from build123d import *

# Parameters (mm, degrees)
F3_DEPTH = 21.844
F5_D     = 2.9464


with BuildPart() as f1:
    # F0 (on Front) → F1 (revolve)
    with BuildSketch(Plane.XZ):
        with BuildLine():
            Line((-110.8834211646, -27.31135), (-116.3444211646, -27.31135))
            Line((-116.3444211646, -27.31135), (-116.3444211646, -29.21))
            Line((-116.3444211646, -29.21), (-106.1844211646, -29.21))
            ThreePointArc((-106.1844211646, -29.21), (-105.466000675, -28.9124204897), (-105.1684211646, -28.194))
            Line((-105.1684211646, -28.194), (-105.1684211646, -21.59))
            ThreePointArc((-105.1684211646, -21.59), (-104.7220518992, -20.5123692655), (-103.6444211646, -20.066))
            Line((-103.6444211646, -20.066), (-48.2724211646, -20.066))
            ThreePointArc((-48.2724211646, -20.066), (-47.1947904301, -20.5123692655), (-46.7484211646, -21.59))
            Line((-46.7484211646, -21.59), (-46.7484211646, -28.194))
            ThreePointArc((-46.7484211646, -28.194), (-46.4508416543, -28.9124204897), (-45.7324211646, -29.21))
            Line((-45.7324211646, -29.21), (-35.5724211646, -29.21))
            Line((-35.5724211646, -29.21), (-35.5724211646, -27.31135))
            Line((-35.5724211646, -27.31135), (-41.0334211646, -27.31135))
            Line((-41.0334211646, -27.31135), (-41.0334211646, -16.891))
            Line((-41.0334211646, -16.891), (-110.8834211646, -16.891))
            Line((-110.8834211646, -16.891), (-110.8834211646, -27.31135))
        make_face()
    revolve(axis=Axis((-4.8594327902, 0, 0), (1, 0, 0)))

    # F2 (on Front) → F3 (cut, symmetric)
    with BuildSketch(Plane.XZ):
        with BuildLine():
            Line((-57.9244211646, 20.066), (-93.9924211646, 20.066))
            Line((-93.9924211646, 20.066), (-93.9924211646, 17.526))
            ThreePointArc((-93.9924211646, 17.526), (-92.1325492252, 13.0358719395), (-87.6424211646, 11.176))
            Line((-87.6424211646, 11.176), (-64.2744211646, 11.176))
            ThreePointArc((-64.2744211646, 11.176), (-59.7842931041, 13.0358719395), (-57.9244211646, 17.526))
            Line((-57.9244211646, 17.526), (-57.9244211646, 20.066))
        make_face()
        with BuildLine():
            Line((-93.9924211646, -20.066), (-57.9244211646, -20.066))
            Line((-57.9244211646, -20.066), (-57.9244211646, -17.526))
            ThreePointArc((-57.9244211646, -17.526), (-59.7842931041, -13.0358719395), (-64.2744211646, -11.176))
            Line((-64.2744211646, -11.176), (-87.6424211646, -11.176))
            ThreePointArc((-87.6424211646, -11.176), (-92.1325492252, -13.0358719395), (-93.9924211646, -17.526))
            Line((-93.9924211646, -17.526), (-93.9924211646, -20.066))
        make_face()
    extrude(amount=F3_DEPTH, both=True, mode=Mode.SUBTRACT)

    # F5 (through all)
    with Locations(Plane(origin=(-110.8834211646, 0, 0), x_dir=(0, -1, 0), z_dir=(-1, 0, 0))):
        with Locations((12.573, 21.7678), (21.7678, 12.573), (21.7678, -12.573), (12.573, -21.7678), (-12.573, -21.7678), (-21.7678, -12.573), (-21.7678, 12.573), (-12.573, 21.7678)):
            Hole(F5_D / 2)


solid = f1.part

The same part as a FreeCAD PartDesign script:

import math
import FreeCAD as App
import Part
import Sketcher
Q = App.Units.Quantity

doc = App.newDocument("Part")
body = doc.addObject("PartDesign::Body", "Body")

# Sketch on XZ plane
sketch1 = doc.addObject("Sketcher::SketchObject", "Sketch")
body.addObject(sketch1)
sketch1.AttachmentSupport = (doc.XZ_Plane, [""])
sketch1.MapMode = "FlatFace"
sketch1.addGeometry([
    Part.LineSegment(App.Vector(-110.883421, -27.31135, 0), App.Vector(-116.344421, -27.31135, 0)),  # 0
    Part.LineSegment(App.Vector(-116.344421, -27.31135, 0), App.Vector(-116.344421, -29.21, 0)),  # 1
    Part.LineSegment(App.Vector(-116.344421, -29.21, 0), App.Vector(-106.184421, -29.21, 0)),  # 2
    Part.ArcOfCircle(Part.Circle(App.Vector(-106.184421, -28.194, 0), App.Vector(0, 0, 1), 1.016), math.radians(-90), math.radians(0)),  # 3
    Part.LineSegment(App.Vector(-105.168421, -28.194, 0), App.Vector(-105.168421, -21.59, 0)),  # 4
    Part.ArcOfCircle(Part.Circle(App.Vector(-103.644421, -21.59, 0), App.Vector(0, 0, 1), 1.524), math.radians(90), math.radians(180)),  # 5
    Part.LineSegment(App.Vector(-103.644421, -20.066, 0), App.Vector(-48.272421, -20.066, 0)),  # 6
    Part.ArcOfCircle(Part.Circle(App.Vector(-48.272421, -21.59, 0), App.Vector(0, 0, 1), 1.524), math.radians(0), math.radians(90)),  # 7
    Part.LineSegment(App.Vector(-46.748421, -21.59, 0), App.Vector(-46.748421, -28.194, 0)),  # 8
    Part.ArcOfCircle(Part.Circle(App.Vector(-45.732421, -28.194, 0), App.Vector(0, 0, 1), 1.016), math.radians(180), math.radians(270)),  # 9
    Part.LineSegment(App.Vector(-45.732421, -29.21, 0), App.Vector(-35.572421, -29.21, 0)),  # 10
    Part.LineSegment(App.Vector(-35.572421, -29.21, 0), App.Vector(-35.572421, -27.31135, 0)),  # 11
    Part.LineSegment(App.Vector(-35.572421, -27.31135, 0), App.Vector(-41.033421, -27.31135, 0)),  # 12
    Part.LineSegment(App.Vector(-41.033421, -27.31135, 0), App.Vector(-41.033421, -16.891, 0)),  # 13
    Part.LineSegment(App.Vector(-41.033421, -16.891, 0), App.Vector(-110.883421, -16.891, 0)),  # 14
    Part.LineSegment(App.Vector(-110.883421, -16.891, 0), App.Vector(-110.883421, -27.31135, 0)),  # 15
], False)
sketch1.addConstraint([
    Sketcher.Constraint("Coincident", 0, 2, 1, 1),
    Sketcher.Constraint("Coincident", 1, 2, 2, 1),
    Sketcher.Constraint("Tangent", 2, 2, 3, 1),
    Sketcher.Constraint("Tangent", 3, 2, 4, 1),
    Sketcher.Constraint("Tangent", 4, 2, 5, 2),
    Sketcher.Constraint("Tangent", 5, 1, 6, 1),
    Sketcher.Constraint("Tangent", 6, 2, 7, 2),
    Sketcher.Constraint("Tangent", 7, 1, 8, 1),
    Sketcher.Constraint("Tangent", 8, 2, 9, 1),
    Sketcher.Constraint("Tangent", 9, 2, 10, 1),
    Sketcher.Constraint("Coincident", 10, 2, 11, 1),
    Sketcher.Constraint("Coincident", 11, 2, 12, 1),
    Sketcher.Constraint("Coincident", 12, 2, 13, 1),
    Sketcher.Constraint("Coincident", 13, 2, 14, 1),
    Sketcher.Constraint("Coincident", 14, 2, 15, 1),
    Sketcher.Constraint("Coincident", 15, 2, 0, 1),
    Sketcher.Constraint("Horizontal", 0),
    Sketcher.Constraint("Vertical", 1),
    Sketcher.Constraint("Horizontal", 2),
    Sketcher.Constraint("Vertical", 4),
    Sketcher.Constraint("Horizontal", 6),
    Sketcher.Constraint("Vertical", 8),
    Sketcher.Constraint("Horizontal", 10),
    Sketcher.Constraint("Vertical", 11),
    Sketcher.Constraint("Horizontal", 12),
    Sketcher.Constraint("Vertical", 13),
    Sketcher.Constraint("Horizontal", 14),
    Sketcher.Constraint("Vertical", 15),
    Sketcher.Constraint("Equal", 5, 7),
    Sketcher.Constraint("Equal", 3, 9),
    Sketcher.Constraint("Horizontal", 3, 3, 9, 3),
    Sketcher.Constraint("Horizontal", 0, 2, 11, 2),
    Sketcher.Constraint("Equal", 2, 10),
    Sketcher.Constraint("Equal", 0, 12),
    Sketcher.Constraint("Radius", 3, Q("0.04 in")),
    Sketcher.Constraint("Radius", 5, Q("0.06 in")),
    Sketcher.Constraint("DistanceX", 2, 1, 2, 2, Q("0.4 in")),
    Sketcher.Constraint("DistanceX", 6, 1, 6, 2, Q("2.18 in")),
    Sketcher.Constraint("DistanceX", 14, 2, 14, 1, Q("2.75 in")),
    Sketcher.Constraint("DistanceY", 4, 1, 4, 2, Q("0.26 in")),
    Sketcher.Constraint("DistanceY", 3, 3, -1, 1, Q("1.11 in")),
    Sketcher.Constraint("DistanceY", 13, 2, -1, 1, Q("0.665 in")),
    Sketcher.Constraint("DistanceY", 1, 2, 1, 1, 1.89865),
    Sketcher.Constraint("DistanceX", 3, 3, -1, 1, 106.184421),
])
revolution = doc.addObject("PartDesign::Revolution", "Revolution")
body.addObject(revolution)
revolution.Profile = sketch1
revolution.ReferenceAxis = (sketch1, ["H_Axis"])
revolution.Angle = 360

# Sketch on XZ plane
sketch2 = doc.addObject("Sketcher::SketchObject", "Sketch001")
body.addObject(sketch2)
sketch2.AttachmentSupport = (doc.XZ_Plane, [""])
sketch2.MapMode = "FlatFace"
sketch2.addGeometry([
    Part.LineSegment(App.Vector(-57.924421, 20.066, 0), App.Vector(-93.992421, 20.066, 0)),  # 0
    Part.LineSegment(App.Vector(-93.992421, 20.066, 0), App.Vector(-93.992421, 17.526, 0)),  # 1
    Part.ArcOfCircle(Part.Circle(App.Vector(-87.642421, 17.526, 0), App.Vector(0, 0, 1), 6.35), math.radians(180), math.radians(270)),  # 2
    Part.LineSegment(App.Vector(-87.642421, 11.176, 0), App.Vector(-64.274421, 11.176, 0)),  # 3
    Part.ArcOfCircle(Part.Circle(App.Vector(-64.274421, 17.526, 0), App.Vector(0, 0, 1), 6.35), math.radians(-90), math.radians(0)),  # 4
    Part.LineSegment(App.Vector(-57.924421, 17.526, 0), App.Vector(-57.924421, 20.066, 0)),  # 5
    Part.LineSegment(App.Vector(-93.992421, -20.066, 0), App.Vector(-57.924421, -20.066, 0)),  # 6
    Part.LineSegment(App.Vector(-57.924421, -20.066, 0), App.Vector(-57.924421, -17.526, 0)),  # 7
    Part.ArcOfCircle(Part.Circle(App.Vector(-64.274421, -17.526, 0), App.Vector(0, 0, 1), 6.35), math.radians(0), math.radians(90)),  # 8
    Part.LineSegment(App.Vector(-64.274421, -11.176, 0), App.Vector(-87.642421, -11.176, 0)),  # 9
    Part.ArcOfCircle(Part.Circle(App.Vector(-87.642421, -17.526, 0), App.Vector(0, 0, 1), 6.35), math.radians(90), math.radians(180)),  # 10
    Part.LineSegment(App.Vector(-93.992421, -17.526, 0), App.Vector(-93.992421, -20.066, 0)),  # 11
], False)
sketch2.addConstraint([
    Sketcher.Constraint("Coincident", 0, 2, 1, 1),
    Sketcher.Constraint("Tangent", 1, 2, 2, 1),
    Sketcher.Constraint("Tangent", 2, 2, 3, 1),
    Sketcher.Constraint("Tangent", 3, 2, 4, 1),
    Sketcher.Constraint("Tangent", 4, 2, 5, 1),
    Sketcher.Constraint("Coincident", 5, 2, 0, 1),
    Sketcher.Constraint("Coincident", 6, 2, 7, 1),
    Sketcher.Constraint("Tangent", 7, 2, 8, 1),
    Sketcher.Constraint("Tangent", 8, 2, 9, 1),
    Sketcher.Constraint("Tangent", 9, 2, 10, 1),
    Sketcher.Constraint("Tangent", 10, 2, 11, 1),
    Sketcher.Constraint("Coincident", 11, 2, 6, 1),
    Sketcher.Constraint("Horizontal", 0),
    Sketcher.Constraint("Vertical", 1),
    Sketcher.Constraint("Horizontal", 3),
    Sketcher.Constraint("Vertical", 5),
    Sketcher.Constraint("Horizontal", 6),
    Sketcher.Constraint("Vertical", 7),
    Sketcher.Constraint("Horizontal", 9),
    Sketcher.Constraint("Vertical", 11),
    Sketcher.Constraint("Equal", 2, 4),
    Sketcher.Constraint("Equal", 4, 8),
    Sketcher.Constraint("Equal", 8, 10),
    Sketcher.Constraint("Symmetric", 4, 3, 8, 3, -1),
    Sketcher.Constraint("Symmetric", 0, 2, 11, 2, -1),
    Sketcher.Constraint("Radius", 2, Q("0.25 in")),
    Sketcher.Constraint("DistanceY", 1, 2, 1, 1, Q("0.1 in")),
    Sketcher.Constraint("DistanceX", 0, 2, 0, 1, Q("1.42 in")),
    Sketcher.Constraint("DistanceY", -1, 1, 2, 3, Q("0.69 in")),
    Sketcher.Constraint("DistanceX", 2, 3, -1, 1, 87.642421),
])
pocket1 = doc.addObject("PartDesign::Pocket", "Pocket")
body.addObject(pocket1)
pocket1.Profile = sketch2
pocket1.Length = Q("1.72 in")
pocket1.Midplane = True

# Sketch on YZ plane
sketch3 = doc.addObject("Sketcher::SketchObject", "Sketch002")
body.addObject(sketch3)
sketch3.AttachmentSupport = (doc.YZ_Plane, [""])
sketch3.MapMode = "FlatFace"
sketch3.AttachmentOffset = App.Placement(App.Vector(0, 0, -110.883421), App.Rotation())
sketch3.addGeometry([
    Part.Circle(App.Vector(-12.573, 21.7678, 0), App.Vector(0, 0, 1), 1.4732),  # 0
    Part.Circle(App.Vector(-21.7678, 12.573, 0), App.Vector(0, 0, 1), 1.4732),  # 1
    Part.Circle(App.Vector(-21.7678, -12.573, 0), App.Vector(0, 0, 1), 1.4732),  # 2
    Part.Circle(App.Vector(-12.573, -21.7678, 0), App.Vector(0, 0, 1), 1.4732),  # 3
    Part.Circle(App.Vector(12.573, -21.7678, 0), App.Vector(0, 0, 1), 1.4732),  # 4
    Part.Circle(App.Vector(21.7678, -12.573, 0), App.Vector(0, 0, 1), 1.4732),  # 5
    Part.Circle(App.Vector(21.7678, 12.573, 0), App.Vector(0, 0, 1), 1.4732),  # 6
    Part.Circle(App.Vector(12.573, 21.7678, 0), App.Vector(0, 0, 1), 1.4732),  # 7
], False)
sketch3.addConstraint([
    Sketcher.Constraint("Equal", 0, 1),
    Sketcher.Constraint("Equal", 1, 2),
    Sketcher.Constraint("Equal", 2, 3),
    Sketcher.Constraint("Equal", 3, 4),
    Sketcher.Constraint("Equal", 4, 5),
    Sketcher.Constraint("Equal", 5, 6),
    Sketcher.Constraint("Equal", 6, 7),
    Sketcher.Constraint("Symmetric", 0, 3, 4, 3, -1, 1),
    Sketcher.Constraint("Symmetric", 1, 3, 5, 3, -1, 1),
    Sketcher.Constraint("Symmetric", 2, 3, 6, 3, -1, 1),
    Sketcher.Constraint("Symmetric", 3, 3, 7, 3, -1, 1),
    Sketcher.Constraint("Symmetric", 3, 3, 4, 3, -2),
    Sketcher.Constraint("Symmetric", 2, 3, 5, 3, -2),
    Sketcher.Constraint("Diameter", 0, Q("0.116 in")),
    Sketcher.Constraint("DistanceY", 2, 3, 1, 3, Q("0.99 in")),
    Sketcher.Constraint("DistanceX", 3, 3, 4, 3, Q("0.99 in")),
    Sketcher.Constraint("DistanceY", -1, 1, 0, 3, Q("0.857 in")),
    Sketcher.Constraint("DistanceX", 1, 3, -1, 1, Q("0.857 in")),
])
doc.recompute()
hole = doc.addObject("PartDesign::Hole", "Hole")
body.addObject(hole)
hole.Profile = sketch3
hole.ThreadType = "None"
hole.Diameter = Q("0.116 in")
hole.DepthType = "ThroughAll"
hole.Reversed = True

doc.recompute()
